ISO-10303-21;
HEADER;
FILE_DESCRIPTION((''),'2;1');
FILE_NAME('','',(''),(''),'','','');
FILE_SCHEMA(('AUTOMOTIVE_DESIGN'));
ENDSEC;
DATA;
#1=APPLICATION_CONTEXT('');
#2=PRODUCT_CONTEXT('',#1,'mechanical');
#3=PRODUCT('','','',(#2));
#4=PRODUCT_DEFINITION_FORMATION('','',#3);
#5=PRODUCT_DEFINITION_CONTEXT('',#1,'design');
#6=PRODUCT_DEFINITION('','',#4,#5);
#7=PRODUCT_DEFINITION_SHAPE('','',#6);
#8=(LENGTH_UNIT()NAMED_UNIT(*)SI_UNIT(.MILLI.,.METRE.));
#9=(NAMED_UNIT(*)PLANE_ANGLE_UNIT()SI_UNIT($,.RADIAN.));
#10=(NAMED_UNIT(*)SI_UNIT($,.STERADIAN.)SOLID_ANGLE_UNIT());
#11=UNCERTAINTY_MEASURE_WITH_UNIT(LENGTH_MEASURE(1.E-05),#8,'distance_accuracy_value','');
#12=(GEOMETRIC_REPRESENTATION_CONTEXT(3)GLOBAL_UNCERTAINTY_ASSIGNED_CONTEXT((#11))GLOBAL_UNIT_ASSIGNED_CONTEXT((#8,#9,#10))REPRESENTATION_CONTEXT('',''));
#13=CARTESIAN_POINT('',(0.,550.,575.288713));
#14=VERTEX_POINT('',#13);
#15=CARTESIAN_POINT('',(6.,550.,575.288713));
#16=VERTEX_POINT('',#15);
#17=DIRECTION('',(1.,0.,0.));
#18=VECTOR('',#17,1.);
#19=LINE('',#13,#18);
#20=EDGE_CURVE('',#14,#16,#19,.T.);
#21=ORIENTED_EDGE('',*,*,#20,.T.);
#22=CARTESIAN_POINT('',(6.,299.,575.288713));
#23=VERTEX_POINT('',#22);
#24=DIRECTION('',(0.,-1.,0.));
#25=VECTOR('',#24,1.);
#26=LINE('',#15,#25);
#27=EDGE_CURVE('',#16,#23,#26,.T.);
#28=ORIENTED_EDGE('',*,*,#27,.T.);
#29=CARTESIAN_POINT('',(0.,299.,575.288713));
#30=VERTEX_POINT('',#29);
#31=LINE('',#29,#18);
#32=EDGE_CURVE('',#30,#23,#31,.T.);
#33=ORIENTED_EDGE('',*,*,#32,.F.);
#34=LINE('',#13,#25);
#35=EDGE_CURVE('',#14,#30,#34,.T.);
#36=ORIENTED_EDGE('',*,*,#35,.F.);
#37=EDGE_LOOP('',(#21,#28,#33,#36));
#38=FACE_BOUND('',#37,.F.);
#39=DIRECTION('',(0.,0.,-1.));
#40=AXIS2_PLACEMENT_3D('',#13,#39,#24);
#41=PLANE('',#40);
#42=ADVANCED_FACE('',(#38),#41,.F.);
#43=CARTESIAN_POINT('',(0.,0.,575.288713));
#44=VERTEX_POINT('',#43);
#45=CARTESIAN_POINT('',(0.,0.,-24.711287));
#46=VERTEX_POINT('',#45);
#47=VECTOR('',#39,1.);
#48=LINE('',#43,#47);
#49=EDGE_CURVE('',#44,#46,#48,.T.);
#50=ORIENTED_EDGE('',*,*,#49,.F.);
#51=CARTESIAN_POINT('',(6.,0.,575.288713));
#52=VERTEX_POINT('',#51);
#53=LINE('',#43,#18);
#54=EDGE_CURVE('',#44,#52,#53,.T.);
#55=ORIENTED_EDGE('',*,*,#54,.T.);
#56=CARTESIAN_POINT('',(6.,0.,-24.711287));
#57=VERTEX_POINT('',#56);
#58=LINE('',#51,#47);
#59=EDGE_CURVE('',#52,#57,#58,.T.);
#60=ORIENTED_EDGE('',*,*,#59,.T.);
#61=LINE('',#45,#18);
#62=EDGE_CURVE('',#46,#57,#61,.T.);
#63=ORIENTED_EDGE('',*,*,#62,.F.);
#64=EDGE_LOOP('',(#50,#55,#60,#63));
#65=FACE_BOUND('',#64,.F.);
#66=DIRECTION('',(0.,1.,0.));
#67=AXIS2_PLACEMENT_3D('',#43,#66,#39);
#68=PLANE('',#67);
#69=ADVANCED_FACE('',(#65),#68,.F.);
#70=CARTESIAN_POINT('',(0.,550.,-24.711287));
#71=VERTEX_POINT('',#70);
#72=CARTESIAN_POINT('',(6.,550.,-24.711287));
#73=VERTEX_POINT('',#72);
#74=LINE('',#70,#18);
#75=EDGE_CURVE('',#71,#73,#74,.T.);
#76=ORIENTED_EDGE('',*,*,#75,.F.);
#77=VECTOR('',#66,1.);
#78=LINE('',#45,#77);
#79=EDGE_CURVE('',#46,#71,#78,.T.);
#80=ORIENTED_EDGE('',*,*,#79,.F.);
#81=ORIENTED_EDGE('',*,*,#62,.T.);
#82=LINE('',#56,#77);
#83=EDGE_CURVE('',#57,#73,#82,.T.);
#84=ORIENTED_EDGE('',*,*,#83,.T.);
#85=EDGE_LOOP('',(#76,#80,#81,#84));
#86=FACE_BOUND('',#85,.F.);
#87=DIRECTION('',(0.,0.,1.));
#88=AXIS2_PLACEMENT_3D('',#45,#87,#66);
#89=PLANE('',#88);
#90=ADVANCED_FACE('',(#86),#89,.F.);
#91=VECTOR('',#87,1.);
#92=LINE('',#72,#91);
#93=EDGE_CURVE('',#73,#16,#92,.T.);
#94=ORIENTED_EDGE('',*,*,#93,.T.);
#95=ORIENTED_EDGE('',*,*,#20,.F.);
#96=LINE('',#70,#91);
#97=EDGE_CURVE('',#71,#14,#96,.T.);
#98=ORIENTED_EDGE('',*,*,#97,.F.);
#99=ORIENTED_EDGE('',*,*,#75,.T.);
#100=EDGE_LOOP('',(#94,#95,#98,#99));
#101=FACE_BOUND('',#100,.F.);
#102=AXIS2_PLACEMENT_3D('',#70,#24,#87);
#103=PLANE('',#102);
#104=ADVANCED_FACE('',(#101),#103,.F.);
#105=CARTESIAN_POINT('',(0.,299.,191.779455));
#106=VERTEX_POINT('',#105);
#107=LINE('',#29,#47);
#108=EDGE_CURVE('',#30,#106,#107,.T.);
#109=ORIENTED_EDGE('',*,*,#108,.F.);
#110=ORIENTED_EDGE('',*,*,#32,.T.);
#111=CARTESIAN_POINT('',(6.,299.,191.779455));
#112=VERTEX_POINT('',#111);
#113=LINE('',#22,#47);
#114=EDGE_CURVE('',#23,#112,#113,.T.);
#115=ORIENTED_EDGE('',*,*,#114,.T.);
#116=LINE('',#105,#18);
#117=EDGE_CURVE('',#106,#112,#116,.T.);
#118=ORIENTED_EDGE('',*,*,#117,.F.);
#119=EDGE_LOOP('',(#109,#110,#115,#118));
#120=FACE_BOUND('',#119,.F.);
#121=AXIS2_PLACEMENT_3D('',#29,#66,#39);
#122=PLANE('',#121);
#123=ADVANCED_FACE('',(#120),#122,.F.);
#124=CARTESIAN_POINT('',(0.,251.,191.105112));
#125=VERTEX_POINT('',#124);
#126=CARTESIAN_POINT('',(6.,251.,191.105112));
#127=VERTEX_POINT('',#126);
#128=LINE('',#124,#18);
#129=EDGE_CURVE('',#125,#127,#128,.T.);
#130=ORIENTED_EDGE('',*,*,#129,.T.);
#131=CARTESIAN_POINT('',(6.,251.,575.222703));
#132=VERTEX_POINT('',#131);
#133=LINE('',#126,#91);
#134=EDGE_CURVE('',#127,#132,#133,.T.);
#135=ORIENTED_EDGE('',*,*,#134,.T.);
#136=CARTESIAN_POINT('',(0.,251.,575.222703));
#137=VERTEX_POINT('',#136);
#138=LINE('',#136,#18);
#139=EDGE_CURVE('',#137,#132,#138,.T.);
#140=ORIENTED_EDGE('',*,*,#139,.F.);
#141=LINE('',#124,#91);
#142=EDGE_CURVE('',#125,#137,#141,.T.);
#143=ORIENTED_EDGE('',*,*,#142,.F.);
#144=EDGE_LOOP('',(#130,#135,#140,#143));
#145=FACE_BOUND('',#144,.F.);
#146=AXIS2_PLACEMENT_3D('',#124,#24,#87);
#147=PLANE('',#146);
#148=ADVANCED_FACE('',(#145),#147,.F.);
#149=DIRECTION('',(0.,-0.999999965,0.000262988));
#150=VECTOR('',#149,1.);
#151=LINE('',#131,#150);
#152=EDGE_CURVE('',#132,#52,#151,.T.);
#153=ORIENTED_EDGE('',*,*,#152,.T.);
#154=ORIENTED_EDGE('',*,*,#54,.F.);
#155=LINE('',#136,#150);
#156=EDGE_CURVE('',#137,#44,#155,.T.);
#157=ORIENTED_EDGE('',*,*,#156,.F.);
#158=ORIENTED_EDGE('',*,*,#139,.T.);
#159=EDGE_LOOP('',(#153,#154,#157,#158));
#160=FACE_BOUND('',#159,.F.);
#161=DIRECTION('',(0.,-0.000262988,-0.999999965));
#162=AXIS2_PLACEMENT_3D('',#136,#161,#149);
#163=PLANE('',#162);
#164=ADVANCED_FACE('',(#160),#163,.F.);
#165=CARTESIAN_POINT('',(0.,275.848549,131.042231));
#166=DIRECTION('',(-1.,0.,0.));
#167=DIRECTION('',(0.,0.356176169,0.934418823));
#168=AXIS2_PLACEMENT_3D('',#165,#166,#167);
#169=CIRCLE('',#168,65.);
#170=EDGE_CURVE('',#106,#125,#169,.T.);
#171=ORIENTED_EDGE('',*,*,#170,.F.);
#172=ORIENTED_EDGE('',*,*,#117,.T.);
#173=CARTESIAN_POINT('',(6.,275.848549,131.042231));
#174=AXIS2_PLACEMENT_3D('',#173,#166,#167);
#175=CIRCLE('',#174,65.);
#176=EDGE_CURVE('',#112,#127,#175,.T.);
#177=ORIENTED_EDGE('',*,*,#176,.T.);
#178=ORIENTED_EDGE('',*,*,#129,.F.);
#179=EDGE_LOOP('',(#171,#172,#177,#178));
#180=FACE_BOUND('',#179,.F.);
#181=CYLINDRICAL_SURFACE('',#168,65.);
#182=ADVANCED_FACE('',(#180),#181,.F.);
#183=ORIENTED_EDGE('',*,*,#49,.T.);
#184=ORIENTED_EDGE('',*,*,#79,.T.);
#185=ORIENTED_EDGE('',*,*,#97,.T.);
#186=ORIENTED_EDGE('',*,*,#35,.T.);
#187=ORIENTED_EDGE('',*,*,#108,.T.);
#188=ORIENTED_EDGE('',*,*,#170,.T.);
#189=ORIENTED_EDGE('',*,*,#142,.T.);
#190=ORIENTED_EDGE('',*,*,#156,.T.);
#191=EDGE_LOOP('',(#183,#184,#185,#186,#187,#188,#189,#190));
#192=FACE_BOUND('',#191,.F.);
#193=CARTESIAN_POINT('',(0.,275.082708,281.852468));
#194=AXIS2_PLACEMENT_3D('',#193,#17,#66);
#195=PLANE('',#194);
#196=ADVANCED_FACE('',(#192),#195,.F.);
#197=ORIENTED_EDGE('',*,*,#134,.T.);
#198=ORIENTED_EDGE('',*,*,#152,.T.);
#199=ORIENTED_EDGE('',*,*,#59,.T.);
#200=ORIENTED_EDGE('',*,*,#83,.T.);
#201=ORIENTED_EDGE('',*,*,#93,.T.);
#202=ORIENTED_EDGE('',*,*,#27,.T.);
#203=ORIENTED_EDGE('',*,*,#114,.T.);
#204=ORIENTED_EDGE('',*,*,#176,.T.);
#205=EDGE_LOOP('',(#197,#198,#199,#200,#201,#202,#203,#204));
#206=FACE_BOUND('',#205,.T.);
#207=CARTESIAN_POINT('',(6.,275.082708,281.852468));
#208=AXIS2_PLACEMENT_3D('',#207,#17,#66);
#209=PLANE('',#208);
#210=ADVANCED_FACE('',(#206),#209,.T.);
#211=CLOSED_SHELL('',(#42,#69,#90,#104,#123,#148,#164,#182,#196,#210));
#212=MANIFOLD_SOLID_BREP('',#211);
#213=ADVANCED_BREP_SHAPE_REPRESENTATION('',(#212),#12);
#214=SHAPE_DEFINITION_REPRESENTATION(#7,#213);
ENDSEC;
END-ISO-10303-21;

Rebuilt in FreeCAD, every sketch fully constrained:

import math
import FreeCAD as App
import Part
import Sketcher

V = App.Vector

doc = App.newDocument("Part")
body = doc.addObject("PartDesign::Body", "Body")

# Sketch on YZ plane
sketch1 = body.newObject("Sketcher::SketchObject", "Sketch")
sketch1.AttachmentSupport = (doc.getObject("YZ_Plane"), [""])
sketch1.MapMode = "FlatFace"
sketch1.addGeometry([
    Part.LineSegment(V(0, 575, 0), V(0, -25, 0)),  # 0
    Part.LineSegment(V(0, -25, 0), V(550, -25, 0)),  # 1
    Part.LineSegment(V(550, -25, 0), V(550, 575, 0)),  # 2
    Part.LineSegment(V(550, 575, 0), V(299, 575, 0)),  # 3
    Part.LineSegment(V(299, 575, 0), V(299, 192, 0)),  # 4
    Part.ArcOfCircle(Part.Circle(V(276, 131, 0), V(0, 0, 1), 65), math.radians(112), math.radians(429)),  # 5
    Part.LineSegment(V(251, 191, 0), V(251, 575, 0)),  # 6
    Part.LineSegment(V(251, 575, 0), V(0, 575, 0)),  # 7
], False)
sketch1.addConstraint([
    Sketcher.Constraint("Coincident", 0, 2, 1, 1),
    Sketcher.Constraint("Coincident", 1, 2, 2, 1),
    Sketcher.Constraint("Coincident", 2, 2, 3, 1),
    Sketcher.Constraint("Coincident", 3, 2, 4, 1),
    Sketcher.Constraint("Coincident", 4, 2, 5, 2),
    Sketcher.Constraint("Coincident", 5, 1, 6, 1),
    Sketcher.Constraint("Coincident", 6, 2, 7, 1),
    Sketcher.Constraint("Coincident", 7, 2, 0, 1),
    Sketcher.Constraint("Vertical", 0),
    Sketcher.Constraint("Horizontal", 1),
    Sketcher.Constraint("Vertical", 2),
    Sketcher.Constraint("Horizontal", 3),
    Sketcher.Constraint("Vertical", 4),
    Sketcher.Constraint("Vertical", 6),
    Sketcher.Constraint("PointOnObject", 0, 2, -2),
    Sketcher.Constraint("Horizontal", 3, 2, 7, 2),
    Sketcher.Constraint("Radius", 5, 65.0),
    Sketcher.Constraint("DistanceX", 1, 1, 1, 2, 550.0),
    Sketcher.Constraint("DistanceX", 3, 2, 3, 1, 251.0),
    Sketcher.Constraint("DistanceY", 0, 2, 0, 1, 600.0),
    Sketcher.Constraint("DistanceX", -1, 1, 5, 1, 251.0),
    Sketcher.Constraint("DistanceY", 4, 2, 4, 1, 383.509258),
    Sketcher.Constraint("DistanceY", 6, 1, 6, 2, 384.117591),
    Sketcher.Constraint("DistanceY", 0, 2, 5, 1, 215.816399),
    Sketcher.Constraint("DistanceY", -1, 1, 5, 3, 131.042231),
])
pad1 = body.newObject("PartDesign::Pad", "Pad")
pad1.Profile = sketch1
pad1.Length = 6

doc.recompute()
